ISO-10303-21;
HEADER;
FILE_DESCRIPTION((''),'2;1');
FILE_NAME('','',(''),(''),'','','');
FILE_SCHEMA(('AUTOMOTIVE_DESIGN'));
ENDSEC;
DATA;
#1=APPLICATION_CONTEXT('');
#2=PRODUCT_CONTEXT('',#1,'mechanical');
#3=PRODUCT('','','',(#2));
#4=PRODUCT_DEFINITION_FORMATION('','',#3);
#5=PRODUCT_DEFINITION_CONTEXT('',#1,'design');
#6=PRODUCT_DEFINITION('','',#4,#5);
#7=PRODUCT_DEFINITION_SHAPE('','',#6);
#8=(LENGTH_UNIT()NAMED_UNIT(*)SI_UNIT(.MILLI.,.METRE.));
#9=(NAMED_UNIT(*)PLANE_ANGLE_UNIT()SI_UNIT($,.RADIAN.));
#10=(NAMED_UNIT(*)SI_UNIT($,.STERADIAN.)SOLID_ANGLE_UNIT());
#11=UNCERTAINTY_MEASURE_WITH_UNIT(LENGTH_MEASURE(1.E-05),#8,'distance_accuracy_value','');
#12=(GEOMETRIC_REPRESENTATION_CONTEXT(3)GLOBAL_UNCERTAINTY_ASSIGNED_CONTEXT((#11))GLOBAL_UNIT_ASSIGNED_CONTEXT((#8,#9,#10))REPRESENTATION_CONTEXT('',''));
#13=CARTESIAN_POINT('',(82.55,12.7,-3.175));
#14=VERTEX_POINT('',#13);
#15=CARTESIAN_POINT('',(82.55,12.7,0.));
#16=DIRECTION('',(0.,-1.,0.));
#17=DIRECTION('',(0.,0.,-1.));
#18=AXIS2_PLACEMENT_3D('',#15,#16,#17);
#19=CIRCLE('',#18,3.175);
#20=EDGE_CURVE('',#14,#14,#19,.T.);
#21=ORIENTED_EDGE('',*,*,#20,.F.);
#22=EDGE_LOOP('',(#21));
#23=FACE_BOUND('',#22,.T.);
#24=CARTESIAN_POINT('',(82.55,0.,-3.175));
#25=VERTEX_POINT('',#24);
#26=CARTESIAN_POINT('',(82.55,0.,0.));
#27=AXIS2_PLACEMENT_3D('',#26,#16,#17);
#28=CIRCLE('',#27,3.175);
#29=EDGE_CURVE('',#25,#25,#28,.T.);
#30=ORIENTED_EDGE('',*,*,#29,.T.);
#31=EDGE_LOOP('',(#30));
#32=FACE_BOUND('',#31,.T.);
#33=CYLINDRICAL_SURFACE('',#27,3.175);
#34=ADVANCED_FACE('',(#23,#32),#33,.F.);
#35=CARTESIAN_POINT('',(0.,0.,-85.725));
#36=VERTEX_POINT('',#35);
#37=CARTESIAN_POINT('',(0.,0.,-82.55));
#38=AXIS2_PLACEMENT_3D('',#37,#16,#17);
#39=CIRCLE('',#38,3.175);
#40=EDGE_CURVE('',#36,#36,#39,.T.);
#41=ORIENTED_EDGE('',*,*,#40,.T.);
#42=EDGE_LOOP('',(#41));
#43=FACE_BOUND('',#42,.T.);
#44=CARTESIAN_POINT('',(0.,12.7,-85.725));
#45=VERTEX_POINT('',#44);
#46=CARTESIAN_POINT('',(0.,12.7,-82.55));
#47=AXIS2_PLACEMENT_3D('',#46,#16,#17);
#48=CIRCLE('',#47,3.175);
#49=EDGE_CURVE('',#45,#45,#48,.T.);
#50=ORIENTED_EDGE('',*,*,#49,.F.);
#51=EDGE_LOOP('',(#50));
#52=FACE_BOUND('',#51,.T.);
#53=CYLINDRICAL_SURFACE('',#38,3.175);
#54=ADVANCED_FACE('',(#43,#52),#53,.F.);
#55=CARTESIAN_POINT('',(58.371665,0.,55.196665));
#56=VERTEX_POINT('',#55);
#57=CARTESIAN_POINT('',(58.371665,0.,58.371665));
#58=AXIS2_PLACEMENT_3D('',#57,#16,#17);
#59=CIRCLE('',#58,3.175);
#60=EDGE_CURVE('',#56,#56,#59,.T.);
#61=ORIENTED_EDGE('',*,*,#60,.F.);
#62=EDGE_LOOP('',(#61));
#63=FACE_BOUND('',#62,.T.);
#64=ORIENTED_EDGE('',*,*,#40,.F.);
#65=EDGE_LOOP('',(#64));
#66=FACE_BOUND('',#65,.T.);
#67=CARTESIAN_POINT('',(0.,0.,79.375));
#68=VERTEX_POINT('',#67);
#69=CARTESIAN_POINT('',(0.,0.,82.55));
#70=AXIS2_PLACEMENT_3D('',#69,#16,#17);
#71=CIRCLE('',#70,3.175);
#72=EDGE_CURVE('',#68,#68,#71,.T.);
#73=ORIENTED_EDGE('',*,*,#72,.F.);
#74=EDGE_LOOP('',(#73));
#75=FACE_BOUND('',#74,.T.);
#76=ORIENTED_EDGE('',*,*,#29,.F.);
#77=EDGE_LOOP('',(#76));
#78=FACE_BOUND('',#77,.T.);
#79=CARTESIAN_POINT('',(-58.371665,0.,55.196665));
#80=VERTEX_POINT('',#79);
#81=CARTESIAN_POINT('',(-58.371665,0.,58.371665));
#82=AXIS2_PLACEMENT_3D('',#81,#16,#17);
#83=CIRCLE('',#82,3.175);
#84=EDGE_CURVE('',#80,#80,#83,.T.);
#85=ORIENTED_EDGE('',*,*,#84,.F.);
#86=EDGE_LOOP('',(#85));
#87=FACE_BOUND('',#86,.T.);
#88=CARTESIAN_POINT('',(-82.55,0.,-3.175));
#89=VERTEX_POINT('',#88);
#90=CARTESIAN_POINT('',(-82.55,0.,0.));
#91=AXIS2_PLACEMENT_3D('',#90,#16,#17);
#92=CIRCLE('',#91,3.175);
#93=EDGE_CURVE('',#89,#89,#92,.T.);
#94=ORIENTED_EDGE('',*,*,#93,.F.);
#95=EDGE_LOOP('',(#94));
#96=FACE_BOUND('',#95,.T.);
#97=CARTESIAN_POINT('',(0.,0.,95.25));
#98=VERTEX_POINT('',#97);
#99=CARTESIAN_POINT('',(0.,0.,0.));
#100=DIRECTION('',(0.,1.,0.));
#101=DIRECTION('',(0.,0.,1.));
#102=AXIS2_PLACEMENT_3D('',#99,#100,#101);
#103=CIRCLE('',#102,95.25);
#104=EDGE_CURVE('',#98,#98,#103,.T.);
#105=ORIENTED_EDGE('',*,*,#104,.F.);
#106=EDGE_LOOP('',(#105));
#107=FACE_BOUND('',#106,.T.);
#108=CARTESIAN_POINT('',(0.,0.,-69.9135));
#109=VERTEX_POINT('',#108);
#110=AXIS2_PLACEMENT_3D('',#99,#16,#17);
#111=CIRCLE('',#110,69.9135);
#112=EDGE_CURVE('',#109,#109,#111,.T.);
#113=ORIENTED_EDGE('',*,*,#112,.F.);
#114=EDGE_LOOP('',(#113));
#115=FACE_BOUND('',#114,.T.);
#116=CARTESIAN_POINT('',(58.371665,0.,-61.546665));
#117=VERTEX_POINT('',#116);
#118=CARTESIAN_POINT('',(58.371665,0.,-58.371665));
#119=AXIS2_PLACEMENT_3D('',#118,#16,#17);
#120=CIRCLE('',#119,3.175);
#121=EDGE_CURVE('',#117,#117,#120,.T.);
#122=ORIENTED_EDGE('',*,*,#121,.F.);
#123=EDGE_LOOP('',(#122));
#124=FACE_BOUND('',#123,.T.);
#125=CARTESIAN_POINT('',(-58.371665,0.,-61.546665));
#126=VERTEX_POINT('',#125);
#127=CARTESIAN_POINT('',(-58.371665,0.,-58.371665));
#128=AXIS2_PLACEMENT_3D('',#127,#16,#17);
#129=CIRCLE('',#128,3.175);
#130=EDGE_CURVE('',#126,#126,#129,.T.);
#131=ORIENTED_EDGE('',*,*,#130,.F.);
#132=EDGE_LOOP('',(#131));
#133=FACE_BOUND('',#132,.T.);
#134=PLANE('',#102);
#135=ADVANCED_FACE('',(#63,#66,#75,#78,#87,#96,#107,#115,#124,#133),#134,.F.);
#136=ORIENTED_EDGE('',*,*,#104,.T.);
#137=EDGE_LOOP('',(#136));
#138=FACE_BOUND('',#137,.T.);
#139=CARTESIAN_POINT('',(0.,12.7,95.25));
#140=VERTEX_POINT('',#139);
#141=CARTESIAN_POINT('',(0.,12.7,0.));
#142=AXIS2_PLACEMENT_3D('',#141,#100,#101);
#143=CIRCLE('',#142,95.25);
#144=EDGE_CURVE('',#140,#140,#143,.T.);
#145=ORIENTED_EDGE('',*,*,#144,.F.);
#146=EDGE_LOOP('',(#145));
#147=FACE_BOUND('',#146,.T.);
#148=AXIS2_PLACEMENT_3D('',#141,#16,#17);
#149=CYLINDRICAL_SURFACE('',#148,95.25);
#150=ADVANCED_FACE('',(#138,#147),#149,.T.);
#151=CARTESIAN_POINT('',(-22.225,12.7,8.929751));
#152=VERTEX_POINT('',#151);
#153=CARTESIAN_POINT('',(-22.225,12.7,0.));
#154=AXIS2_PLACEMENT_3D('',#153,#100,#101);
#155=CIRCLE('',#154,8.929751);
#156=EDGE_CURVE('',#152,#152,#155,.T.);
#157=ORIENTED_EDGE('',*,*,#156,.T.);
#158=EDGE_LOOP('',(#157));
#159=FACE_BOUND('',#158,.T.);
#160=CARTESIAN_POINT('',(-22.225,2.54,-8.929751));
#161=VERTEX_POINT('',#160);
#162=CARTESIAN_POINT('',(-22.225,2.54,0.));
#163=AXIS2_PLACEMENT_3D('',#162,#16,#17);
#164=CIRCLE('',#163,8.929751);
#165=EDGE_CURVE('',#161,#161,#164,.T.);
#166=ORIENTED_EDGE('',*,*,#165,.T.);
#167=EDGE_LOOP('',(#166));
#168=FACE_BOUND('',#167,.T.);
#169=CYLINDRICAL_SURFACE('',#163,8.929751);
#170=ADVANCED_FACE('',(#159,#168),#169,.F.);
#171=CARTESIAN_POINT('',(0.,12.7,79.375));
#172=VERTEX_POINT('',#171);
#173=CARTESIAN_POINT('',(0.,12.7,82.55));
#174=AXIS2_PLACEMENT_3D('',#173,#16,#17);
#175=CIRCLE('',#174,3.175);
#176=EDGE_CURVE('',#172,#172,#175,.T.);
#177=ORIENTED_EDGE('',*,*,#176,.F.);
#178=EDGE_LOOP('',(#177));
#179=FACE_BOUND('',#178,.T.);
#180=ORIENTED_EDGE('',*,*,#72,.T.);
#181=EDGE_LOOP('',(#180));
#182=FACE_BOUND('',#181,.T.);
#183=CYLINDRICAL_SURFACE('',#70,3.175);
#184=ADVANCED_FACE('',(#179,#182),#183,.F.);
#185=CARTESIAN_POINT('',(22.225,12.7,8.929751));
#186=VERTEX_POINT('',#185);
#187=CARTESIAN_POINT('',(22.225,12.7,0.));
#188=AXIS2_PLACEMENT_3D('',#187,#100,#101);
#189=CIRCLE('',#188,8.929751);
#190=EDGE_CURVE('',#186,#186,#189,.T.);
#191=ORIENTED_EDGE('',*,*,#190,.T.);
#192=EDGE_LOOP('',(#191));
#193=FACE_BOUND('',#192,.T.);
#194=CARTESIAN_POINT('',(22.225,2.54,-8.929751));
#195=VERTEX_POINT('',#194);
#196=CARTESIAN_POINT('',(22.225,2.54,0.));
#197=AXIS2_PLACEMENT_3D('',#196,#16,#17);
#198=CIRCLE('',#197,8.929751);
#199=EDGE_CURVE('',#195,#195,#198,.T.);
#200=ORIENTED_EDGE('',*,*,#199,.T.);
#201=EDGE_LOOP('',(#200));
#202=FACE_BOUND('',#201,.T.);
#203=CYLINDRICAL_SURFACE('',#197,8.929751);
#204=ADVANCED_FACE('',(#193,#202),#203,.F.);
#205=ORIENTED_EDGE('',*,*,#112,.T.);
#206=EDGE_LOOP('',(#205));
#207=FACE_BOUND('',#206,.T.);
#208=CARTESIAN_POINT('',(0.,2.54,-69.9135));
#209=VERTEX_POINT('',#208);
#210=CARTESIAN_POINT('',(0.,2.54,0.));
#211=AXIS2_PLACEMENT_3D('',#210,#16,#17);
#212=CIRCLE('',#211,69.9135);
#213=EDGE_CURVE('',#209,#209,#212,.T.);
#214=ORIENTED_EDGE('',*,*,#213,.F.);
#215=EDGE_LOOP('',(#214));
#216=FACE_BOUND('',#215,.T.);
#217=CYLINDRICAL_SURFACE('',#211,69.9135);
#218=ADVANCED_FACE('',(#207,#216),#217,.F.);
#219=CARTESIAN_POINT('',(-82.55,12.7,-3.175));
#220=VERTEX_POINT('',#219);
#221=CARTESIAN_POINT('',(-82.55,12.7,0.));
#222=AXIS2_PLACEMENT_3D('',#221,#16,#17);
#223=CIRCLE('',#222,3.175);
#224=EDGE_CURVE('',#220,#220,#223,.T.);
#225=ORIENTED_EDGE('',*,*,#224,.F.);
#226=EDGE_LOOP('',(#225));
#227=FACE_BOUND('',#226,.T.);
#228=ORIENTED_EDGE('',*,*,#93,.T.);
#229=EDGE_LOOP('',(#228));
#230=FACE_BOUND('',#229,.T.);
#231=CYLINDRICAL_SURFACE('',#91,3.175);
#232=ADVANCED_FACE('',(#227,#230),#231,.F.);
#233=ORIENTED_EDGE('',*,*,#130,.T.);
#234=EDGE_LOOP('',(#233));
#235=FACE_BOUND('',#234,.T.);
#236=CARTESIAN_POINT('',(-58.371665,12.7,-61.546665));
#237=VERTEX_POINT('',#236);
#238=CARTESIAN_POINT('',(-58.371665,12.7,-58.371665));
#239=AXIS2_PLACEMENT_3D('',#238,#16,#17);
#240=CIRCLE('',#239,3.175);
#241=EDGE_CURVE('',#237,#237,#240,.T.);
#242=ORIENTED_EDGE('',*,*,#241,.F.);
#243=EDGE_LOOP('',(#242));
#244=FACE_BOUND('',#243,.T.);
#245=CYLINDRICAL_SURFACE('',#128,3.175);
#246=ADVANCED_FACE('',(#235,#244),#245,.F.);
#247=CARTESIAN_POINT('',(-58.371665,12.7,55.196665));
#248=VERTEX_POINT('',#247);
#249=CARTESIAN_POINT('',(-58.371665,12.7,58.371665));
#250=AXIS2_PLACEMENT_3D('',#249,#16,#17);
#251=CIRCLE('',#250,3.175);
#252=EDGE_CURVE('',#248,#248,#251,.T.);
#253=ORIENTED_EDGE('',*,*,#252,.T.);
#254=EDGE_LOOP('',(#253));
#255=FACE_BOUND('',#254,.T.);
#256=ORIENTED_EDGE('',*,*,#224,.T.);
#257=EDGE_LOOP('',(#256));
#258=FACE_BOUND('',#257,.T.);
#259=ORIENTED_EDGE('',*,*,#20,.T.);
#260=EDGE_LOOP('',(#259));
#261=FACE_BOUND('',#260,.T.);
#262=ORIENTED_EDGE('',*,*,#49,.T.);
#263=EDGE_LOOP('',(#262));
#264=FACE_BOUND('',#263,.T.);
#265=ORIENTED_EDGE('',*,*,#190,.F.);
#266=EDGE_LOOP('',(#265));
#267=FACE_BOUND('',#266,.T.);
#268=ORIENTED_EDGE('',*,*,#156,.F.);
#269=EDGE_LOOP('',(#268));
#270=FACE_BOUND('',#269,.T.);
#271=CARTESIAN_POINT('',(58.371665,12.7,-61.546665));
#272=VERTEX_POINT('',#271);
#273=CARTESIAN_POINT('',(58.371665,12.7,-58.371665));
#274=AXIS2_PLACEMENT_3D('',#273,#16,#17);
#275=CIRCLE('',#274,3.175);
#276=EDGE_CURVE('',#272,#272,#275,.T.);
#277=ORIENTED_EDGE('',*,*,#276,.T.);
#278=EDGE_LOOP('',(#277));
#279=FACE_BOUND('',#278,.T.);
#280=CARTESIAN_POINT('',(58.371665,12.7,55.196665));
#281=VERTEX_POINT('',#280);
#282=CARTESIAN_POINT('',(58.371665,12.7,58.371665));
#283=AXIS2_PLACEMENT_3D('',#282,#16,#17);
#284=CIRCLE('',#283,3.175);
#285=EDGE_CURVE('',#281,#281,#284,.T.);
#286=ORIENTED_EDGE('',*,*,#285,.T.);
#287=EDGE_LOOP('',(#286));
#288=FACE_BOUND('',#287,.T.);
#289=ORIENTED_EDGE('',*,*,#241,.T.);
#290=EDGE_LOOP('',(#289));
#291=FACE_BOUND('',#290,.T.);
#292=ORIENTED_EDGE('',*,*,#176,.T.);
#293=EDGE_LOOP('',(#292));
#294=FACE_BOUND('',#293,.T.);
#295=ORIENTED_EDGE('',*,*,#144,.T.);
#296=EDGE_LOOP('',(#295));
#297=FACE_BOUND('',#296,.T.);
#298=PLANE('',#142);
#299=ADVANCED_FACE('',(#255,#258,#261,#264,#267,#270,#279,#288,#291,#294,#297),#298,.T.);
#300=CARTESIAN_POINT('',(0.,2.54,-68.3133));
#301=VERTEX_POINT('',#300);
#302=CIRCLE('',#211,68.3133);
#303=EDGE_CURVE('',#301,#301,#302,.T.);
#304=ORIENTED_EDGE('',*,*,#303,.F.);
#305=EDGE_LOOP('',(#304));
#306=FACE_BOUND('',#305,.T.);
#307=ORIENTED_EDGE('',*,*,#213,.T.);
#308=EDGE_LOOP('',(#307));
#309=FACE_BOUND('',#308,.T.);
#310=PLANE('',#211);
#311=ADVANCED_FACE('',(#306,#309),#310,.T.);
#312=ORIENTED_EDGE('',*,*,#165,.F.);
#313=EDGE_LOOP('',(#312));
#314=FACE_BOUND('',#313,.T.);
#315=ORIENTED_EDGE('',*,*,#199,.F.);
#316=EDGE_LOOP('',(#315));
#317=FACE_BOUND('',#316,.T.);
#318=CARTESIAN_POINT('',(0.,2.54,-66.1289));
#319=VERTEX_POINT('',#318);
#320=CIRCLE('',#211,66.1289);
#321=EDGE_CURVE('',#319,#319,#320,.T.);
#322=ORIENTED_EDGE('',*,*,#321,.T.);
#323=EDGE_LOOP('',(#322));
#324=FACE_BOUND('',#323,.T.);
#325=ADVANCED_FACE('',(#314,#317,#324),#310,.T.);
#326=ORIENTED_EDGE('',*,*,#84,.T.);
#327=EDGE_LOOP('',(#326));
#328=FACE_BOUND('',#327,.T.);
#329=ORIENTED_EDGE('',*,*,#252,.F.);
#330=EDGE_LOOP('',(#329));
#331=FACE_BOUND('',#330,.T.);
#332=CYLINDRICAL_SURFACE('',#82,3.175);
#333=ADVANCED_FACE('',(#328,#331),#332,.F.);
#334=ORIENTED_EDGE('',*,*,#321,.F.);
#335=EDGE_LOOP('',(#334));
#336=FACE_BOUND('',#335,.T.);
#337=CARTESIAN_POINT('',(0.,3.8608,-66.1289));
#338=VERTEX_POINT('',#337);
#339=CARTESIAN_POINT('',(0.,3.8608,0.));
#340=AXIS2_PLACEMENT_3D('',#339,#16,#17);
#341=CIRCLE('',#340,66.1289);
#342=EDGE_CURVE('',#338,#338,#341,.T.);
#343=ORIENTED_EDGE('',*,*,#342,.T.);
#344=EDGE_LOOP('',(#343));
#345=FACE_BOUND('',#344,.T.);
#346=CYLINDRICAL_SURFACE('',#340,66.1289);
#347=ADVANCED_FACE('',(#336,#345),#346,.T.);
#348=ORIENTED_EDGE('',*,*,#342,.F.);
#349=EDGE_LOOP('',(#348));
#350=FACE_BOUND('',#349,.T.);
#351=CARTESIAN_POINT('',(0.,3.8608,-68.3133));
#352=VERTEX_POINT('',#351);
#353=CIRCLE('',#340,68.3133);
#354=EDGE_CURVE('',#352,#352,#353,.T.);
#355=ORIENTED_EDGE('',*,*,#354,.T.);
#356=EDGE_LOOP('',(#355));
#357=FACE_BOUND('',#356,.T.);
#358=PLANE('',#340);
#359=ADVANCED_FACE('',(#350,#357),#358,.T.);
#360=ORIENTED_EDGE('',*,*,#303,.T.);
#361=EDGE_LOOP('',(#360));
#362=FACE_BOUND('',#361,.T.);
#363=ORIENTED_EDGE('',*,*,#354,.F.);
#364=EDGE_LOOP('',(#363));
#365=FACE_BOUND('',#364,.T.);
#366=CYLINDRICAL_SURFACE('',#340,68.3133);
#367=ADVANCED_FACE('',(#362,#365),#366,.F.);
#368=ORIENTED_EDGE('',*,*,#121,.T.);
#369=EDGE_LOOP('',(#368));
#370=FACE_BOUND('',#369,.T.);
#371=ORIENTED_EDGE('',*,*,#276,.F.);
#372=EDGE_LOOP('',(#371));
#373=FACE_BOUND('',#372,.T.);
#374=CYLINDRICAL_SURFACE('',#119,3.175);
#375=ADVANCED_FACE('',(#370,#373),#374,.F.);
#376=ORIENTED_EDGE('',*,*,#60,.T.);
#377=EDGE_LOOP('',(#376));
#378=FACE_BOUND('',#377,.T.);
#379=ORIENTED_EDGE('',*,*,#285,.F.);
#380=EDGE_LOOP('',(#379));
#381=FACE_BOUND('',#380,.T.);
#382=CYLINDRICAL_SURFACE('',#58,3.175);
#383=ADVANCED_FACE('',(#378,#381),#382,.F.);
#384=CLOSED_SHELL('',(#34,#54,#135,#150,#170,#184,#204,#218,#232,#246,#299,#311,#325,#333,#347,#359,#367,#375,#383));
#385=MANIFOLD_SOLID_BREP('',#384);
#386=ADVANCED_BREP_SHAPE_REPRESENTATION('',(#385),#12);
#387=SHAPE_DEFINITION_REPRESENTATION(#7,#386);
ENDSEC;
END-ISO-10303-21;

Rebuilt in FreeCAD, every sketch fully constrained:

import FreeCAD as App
import Part
import Sketcher
Q = App.Units.Quantity

doc = App.newDocument("Part")
body = doc.addObject("PartDesign::Body", "Body")

# Sketch on XZ plane
sketch1 = doc.addObject("Sketcher::SketchObject", "Sketch")
body.addObject(sketch1)
sketch1.AttachmentSupport = (doc.XZ_Plane, [""])
sketch1.MapMode = "FlatFace"
sketch1.addGeometry(Part.Circle(App.Vector(0, 0, 0), App.Vector(0, 0, 1), 95.25), False)
sketch1.addConstraint([
    Sketcher.Constraint("Coincident", 0, 3, -1, 1),
    Sketcher.Constraint("Diameter", 0, Q("7.5 in")),
])
pad1 = doc.addObject("PartDesign::Pad", "Pad")
body.addObject(pad1)
pad1.Profile = sketch1
pad1.Length = Q("0.5 in")
pad1.Reversed = True

# Sketch on XZ plane
sketch2 = doc.addObject("Sketcher::SketchObject", "Sketch001")
body.addObject(sketch2)
sketch2.AttachmentSupport = (doc.XZ_Plane, [""])
sketch2.MapMode = "FlatFace"
sketch2.addGeometry(Part.Circle(App.Vector(0, 82.55, 0), App.Vector(0, 0, 1), 3.175), False)
sketch2.addConstraint([
    Sketcher.Constraint("PointOnObject", 0, 3, -2),
    Sketcher.Constraint("Diameter", 0, Q("0.25 in")),
    Sketcher.Constraint("DistanceY", -1, 1, 0, 3, Q("3.25 in")),
])
doc.recompute()
hole = doc.addObject("PartDesign::Hole", "Hole")
body.addObject(hole)
hole.Profile = sketch2
hole.ThreadType = "None"
hole.Diameter = Q("0.25 in")
hole.DepthType = "ThroughAll"
doc.recompute()

polarpattern = doc.addObject("PartDesign::PolarPattern", "PolarPattern")
body.addObject(polarpattern)
polarpattern.Originals = [hole]
polarpattern.Axis = (doc.Y_Axis, [""])
polarpattern.Angle = 360
polarpattern.Occurrences = 8
body.Tip = polarpattern

# Sketch on XZ plane
sketch3 = doc.addObject("Sketcher::SketchObject", "Sketch002")
body.addObject(sketch3)
sketch3.AttachmentSupport = (doc.XZ_Plane, [""])
sketch3.MapMode = "FlatFace"
sketch3.addGeometry(Part.Circle(App.Vector(0, 0, 0), App.Vector(0, 0, 1), 69.9135), False)
sketch3.addConstraint([
    Sketcher.Constraint("Coincident", 0, 3, -1, 1),
    Sketcher.Constraint("Diameter", 0, Q("5.505 in")),
])
pocket1 = doc.addObject("PartDesign::Pocket", "Pocket")
body.addObject(pocket1)
pocket1.Profile = sketch3
pocket1.Length = Q("0.1 in")

# Sketch on XZ plane
sketch4 = doc.addObject("Sketcher::SketchObject", "Sketch003")
body.addObject(sketch4)
sketch4.AttachmentSupport = (doc.XZ_Plane, [""])
sketch4.MapMode = "FlatFace"
sketch4.AttachmentOffset = App.Placement(App.Vector(0, 0, -0.1 * 25.4), App.Rotation())
sketch4.addGeometry([
    Part.Circle(App.Vector(0, 0, 0), App.Vector(0, 0, 1), 68.3133),
    Part.Circle(App.Vector(0, 0, 0), App.Vector(0, 0, 1), 66.1289),
], False)
sketch4.addConstraint([
    Sketcher.Constraint("Coincident", 0, 3, -1, 1),
    Sketcher.Constraint("Coincident", 1, 3, -1, 1),
    Sketcher.Constraint("Diameter", 0, Q("5.379 in")),
    Sketcher.Constraint("Diameter", 1, Q("5.207 in")),
])
pocket2 = doc.addObject("PartDesign::Pocket", "Pocket001")
body.addObject(pocket2)
pocket2.Profile = sketch4
pocket2.Length = Q("0.052 in")

# Sketch on XZ plane
sketch5 = doc.addObject("Sketcher::SketchObject", "Sketch004")
body.addObject(sketch5)
sketch5.AttachmentSupport = (doc.XZ_Plane, [""])
sketch5.MapMode = "FlatFace"
sketch5.AttachmentOffset = App.Placement(App.Vector(0, 0, -0.1 * 25.4), App.Rotation())
sketch5.addGeometry([
    Part.Circle(App.Vector(-22.225, 0, 0), App.Vector(0, 0, 1), 8.929751),
    Part.Circle(App.Vector(22.225, 0, 0), App.Vector(0, 0, 1), 8.929751),
], False)
sketch5.addConstraint([
    Sketcher.Constraint("Equal", 0, 1),
    Sketcher.Constraint("Symmetric", 0, 3, 1, 3, -1, 1),
    Sketcher.Constraint("PointOnObject", 0, 3, -1),
    Sketcher.Constraint("Diameter", 0, Q("17.859502 mm")),
    Sketcher.Constraint("DistanceX", 0, 3, 1, 3, Q("1.75 in")),
])
doc.recompute()
hole2 = doc.addObject("PartDesign::Hole", "Hole001")
body.addObject(hole2)
hole2.Profile = sketch5
hole2.ThreadType = "None"
hole2.Diameter = 17.859502
hole2.DepthType = "Dimension"
hole2.Depth = Q("1 in")
hole2.DrillPoint = "Angled"
hole2.DrillPointAngle = 118

doc.recompute()
